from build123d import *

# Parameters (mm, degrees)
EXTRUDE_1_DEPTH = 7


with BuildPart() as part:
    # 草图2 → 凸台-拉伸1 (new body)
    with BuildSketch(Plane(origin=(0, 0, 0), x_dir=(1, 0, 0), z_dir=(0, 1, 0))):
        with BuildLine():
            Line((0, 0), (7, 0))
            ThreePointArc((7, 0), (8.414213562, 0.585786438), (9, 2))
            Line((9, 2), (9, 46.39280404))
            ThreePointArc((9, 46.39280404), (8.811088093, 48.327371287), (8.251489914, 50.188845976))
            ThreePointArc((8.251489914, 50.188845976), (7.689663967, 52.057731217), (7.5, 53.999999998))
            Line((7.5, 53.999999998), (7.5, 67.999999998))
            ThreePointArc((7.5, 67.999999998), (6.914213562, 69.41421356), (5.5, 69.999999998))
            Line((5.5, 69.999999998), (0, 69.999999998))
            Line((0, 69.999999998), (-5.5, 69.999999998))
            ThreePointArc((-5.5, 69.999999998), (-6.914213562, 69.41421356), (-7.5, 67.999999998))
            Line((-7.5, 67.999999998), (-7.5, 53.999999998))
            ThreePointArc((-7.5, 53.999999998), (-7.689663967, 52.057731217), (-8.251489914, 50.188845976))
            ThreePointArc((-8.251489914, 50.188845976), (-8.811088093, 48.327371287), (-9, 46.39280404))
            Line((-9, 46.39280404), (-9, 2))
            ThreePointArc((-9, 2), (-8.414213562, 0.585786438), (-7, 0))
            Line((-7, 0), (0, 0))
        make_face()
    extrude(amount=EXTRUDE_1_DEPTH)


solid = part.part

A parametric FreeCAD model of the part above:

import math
import FreeCAD as App
import Part
import Sketcher
Q = App.Units.Quantity

doc = App.newDocument("Part")
params = doc.addObject("Spreadsheet::Sheet", "Params")
for row, (alias, value) in enumerate([
    ("sketch1_radius", "2 mm"),
    ("sketch1_radius2", "10 mm"),
    ("sketch1_width", "11 mm"),
    ("sketch1_width2", "14 mm"),
    ("pad1_length", "7 mm"),
], start=1):
    params.set(f"A{row}", alias)
    params.set(f"B{row}", "=" + value)
    params.setAlias(f"B{row}", alias)

body = doc.addObject("PartDesign::Body", "Body")

sketch1 = doc.addObject("Sketcher::SketchObject", "Sketch")
body.addObject(sketch1)
sketch1.AttachmentSupport = (doc.XZ_Plane, [""])
sketch1.MapMode = "FlatFace"
sketch1.addGeometry(Part.ArcOfCircle(Part.Circle(App.Vector(7, -2, 0), App.Vector(0, 0, 1), 2), math.radians(0), math.radians(90)), False)
sketch1.addGeometry(Part.LineSegment(App.Vector(9, -2, 0), App.Vector(9, -46.4, 0)), False)
sketch1.addGeometry(Part.ArcOfCircle(Part.Circle(App.Vector(-1, -46.4, 0), App.Vector(0, 0, 1), 10), math.radians(-22), math.radians(0)), False)
sketch1.addGeometry(Part.ArcOfCircle(Part.Circle(App.Vector(17.5, -54, 0), App.Vector(0, 0, 1), 10), math.radians(158), math.radians(180)), False)
sketch1.addGeometry(Part.LineSegment(App.Vector(7.5, -54, 0), App.Vector(7.5, -68, 0)), False)
sketch1.addGeometry(Part.ArcOfCircle(Part.Circle(App.Vector(5.5, -68, 0), App.Vector(0, 0, 1), 2), math.radians(-90), math.radians(0)), False)
sketch1.addGeometry(Part.LineSegment(App.Vector(5.5, -70, 0), App.Vector(-5.5, -70, 0)), False)
sketch1.addGeometry(Part.ArcOfCircle(Part.Circle(App.Vector(-5.5, -68, 0), App.Vector(0, 0, 1), 2), math.radians(-180), math.radians(-90)), False)
sketch1.addGeometry(Part.LineSegment(App.Vector(-7.5, -68, 0), App.Vector(-7.5, -54, 0)), False)
sketch1.addGeometry(Part.ArcOfCircle(Part.Circle(App.Vector(-17.5, -54, 0), App.Vector(0, 0, 1), 10), math.radians(0), math.radians(22)), False)
sketch1.addGeometry(Part.ArcOfCircle(Part.Circle(App.Vector(1, -46.4, 0), App.Vector(0, 0, 1), 10), math.radians(180), math.radians(202)), False)
sketch1.addGeometry(Part.LineSegment(App.Vector(-9, -46.4, 0), App.Vector(-9, -2, 0)), False)
sketch1.addGeometry(Part.ArcOfCircle(Part.Circle(App.Vector(-7, -2, 0), App.Vector(0, 0, 1), 2), math.radians(90), math.radians(180)), False)
sketch1.addGeometry(Part.LineSegment(App.Vector(-7, 0, 0), App.Vector(7, 0, 0)), False)
sketch1.addConstraint(Sketcher.Constraint("Tangent", 0, 1, 1, 1))
sketch1.addConstraint(Sketcher.Constraint("Tangent", 1, 2, 2, 2))
sketch1.addConstraint(Sketcher.Constraint("Tangent", 2, 1, 3, 1))
sketch1.addConstraint(Sketcher.Constraint("Tangent", 3, 2, 4, 1))
sketch1.addConstraint(Sketcher.Constraint("Tangent", 4, 2, 5, 2))
sketch1.addConstraint(Sketcher.Constraint("Tangent", 5, 1, 6, 1))
sketch1.addConstraint(Sketcher.Constraint("Tangent", 6, 2, 7, 2))
sketch1.addConstraint(Sketcher.Constraint("Tangent", 7, 1, 8, 1))
sketch1.addConstraint(Sketcher.Constraint("Tangent", 8, 2, 9, 1))
sketch1.addConstraint(Sketcher.Constraint("Tangent", 9, 2, 10, 2))
sketch1.addConstraint(Sketcher.Constraint("Tangent", 10, 1, 11, 1))
sketch1.addConstraint(Sketcher.Constraint("Tangent", 11, 2, 12, 2))
sketch1.addConstraint(Sketcher.Constraint("Tangent", 12, 1, 13, 1))
sketch1.addConstraint(Sketcher.Constraint("Tangent", 13, 2, 0, 2))
sketch1.addConstraint(Sketcher.Constraint("Vertical", 1))
sketch1.addConstraint(Sketcher.Constraint("Vertical", 4))
sketch1.addConstraint(Sketcher.Constraint("Horizontal", 6))
sketch1.addConstraint(Sketcher.Constraint("Vertical", 8))
sketch1.addConstraint(Sketcher.Constraint("Vertical", 11))
sketch1.addConstraint(Sketcher.Constraint("Horizontal", 13))
sketch1.addConstraint(Sketcher.Constraint("Equal", 0, 5))
sketch1.addConstraint(Sketcher.Constraint("Equal", 5, 7))
sketch1.addConstraint(Sketcher.Constraint("Equal", 3, 9))
sketch1.addConstraint(Sketcher.Constraint("Equal", 2, 10))
sketch1.addConstraint(Sketcher.Constraint("Equal", 7, 12))
sketch1.addConstraint(Sketcher.Constraint("Symmetric", 12, 1, 13, 2, -1, 1))
sketch1.addConstraint(Sketcher.Constraint("Symmetric", 3, 3, 9, 3, -2))
sketch1.addConstraint(Sketcher.Constraint("Equal", 13, 4))
sketch1.addConstraint(Sketcher.Constraint("Radius", 0, Q("2 mm")))
sketch1.addConstraint(Sketcher.Constraint("Radius", 2, Q("10 mm")))
sketch1.addConstraint(Sketcher.Constraint("DistanceX", 6, 2, 6, 1, Q("11 mm")))
sketch1.addConstraint(Sketcher.Constraint("DistanceX", 13, 1, 13, 2, Q("14 mm")))
sketch1.addConstraint(Sketcher.Constraint("DistanceY", 3, 3, -1, 1, Q("54 mm")))
sketch1.addConstraint(Sketcher.Constraint("Radius", 3, Q("10.03981 mm")))
sketch1.setExpression("Constraints[28]", "Params.sketch1_radius")
sketch1.setExpression("Constraints[29]", "Params.sketch1_radius2")
sketch1.setExpression("Constraints[30]", "Params.sketch1_width")
sketch1.setExpression("Constraints[31]", "Params.sketch1_width2")
pad1 = doc.addObject("PartDesign::Pad", "Pad")
body.addObject(pad1)
pad1.Profile = sketch1
pad1.setExpression("Length", "Params.pad1_length")
pad1.Reversed = True

doc.recompute()
